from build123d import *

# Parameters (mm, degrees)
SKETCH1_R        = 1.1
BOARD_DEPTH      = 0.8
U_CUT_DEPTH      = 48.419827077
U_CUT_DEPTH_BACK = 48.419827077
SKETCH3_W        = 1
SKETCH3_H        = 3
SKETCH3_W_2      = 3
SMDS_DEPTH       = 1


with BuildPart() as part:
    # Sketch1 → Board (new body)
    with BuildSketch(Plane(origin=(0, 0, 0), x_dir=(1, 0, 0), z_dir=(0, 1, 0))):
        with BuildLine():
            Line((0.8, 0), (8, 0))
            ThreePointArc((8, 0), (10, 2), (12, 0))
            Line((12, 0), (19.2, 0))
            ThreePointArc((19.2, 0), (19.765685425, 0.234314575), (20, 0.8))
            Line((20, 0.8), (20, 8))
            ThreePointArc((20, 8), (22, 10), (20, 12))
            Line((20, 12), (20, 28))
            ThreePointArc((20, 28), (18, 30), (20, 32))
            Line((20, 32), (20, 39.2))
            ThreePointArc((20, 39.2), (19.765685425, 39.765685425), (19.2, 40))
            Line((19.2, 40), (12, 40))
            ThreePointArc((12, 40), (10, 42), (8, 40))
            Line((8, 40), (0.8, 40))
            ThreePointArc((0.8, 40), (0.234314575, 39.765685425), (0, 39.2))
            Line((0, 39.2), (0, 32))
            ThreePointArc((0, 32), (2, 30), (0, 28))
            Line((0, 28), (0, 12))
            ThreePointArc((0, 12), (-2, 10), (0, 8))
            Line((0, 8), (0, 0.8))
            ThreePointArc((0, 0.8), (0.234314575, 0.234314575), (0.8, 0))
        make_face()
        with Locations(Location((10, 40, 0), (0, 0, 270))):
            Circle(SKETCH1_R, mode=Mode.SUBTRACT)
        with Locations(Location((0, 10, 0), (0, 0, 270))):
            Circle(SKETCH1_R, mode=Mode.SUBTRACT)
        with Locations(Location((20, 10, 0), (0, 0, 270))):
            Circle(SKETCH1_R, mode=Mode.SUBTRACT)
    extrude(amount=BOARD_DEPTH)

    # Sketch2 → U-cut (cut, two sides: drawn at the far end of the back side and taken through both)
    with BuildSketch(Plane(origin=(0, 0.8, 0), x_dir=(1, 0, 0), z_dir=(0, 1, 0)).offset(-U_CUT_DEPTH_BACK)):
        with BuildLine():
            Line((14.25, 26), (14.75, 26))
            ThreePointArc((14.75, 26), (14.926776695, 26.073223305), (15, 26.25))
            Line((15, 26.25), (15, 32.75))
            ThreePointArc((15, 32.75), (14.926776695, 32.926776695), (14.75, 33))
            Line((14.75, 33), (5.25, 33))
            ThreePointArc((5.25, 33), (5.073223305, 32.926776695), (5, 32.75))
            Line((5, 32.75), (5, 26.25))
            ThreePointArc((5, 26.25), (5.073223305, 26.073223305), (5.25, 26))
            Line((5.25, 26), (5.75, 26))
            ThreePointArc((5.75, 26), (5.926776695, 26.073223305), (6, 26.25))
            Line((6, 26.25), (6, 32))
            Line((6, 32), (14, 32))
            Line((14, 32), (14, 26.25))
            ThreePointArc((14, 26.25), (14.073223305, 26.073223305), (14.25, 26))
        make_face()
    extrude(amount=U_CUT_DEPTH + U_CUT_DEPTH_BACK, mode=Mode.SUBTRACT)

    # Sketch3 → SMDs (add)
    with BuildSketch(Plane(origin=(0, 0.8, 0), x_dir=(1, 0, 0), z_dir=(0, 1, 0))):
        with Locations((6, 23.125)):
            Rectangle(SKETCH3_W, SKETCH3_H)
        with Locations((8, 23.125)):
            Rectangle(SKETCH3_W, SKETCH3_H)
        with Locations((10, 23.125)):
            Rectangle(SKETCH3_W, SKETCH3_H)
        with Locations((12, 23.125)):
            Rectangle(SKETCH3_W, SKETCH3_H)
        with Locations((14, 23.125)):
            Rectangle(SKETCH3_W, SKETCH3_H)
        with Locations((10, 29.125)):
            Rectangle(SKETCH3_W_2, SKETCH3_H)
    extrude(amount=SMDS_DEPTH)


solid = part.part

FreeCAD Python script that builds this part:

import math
import FreeCAD as App
import Part
import Sketcher
Q = App.Units.Quantity

doc = App.newDocument("Part")
body = doc.addObject("PartDesign::Body", "Body")

# Sketch on XZ plane
sketch1 = body.newObject("Sketcher::SketchObject", "Sketch")
sketch1.AttachmentSupport = (doc.getObject("XZ_Plane"), [""])
sketch1.MapMode = "FlatFace"
sketch1.addGeometry(Part.LineSegment(App.Vector(0.8, 0, 0), App.Vector(8, 0, 0)), False)
sketch1.addGeometry(Part.ArcOfCircle(Part.Circle(App.Vector(10, 0, 0), App.Vector(0, 0, 1), 2), math.radians(180), math.radians(360)), False)
sketch1.addGeometry(Part.LineSegment(App.Vector(12, 0, 0), App.Vector(19.2, 0, 0)), False)
sketch1.addGeometry(Part.ArcOfCircle(Part.Circle(App.Vector(19.2, -0.8, 0), App.Vector(0, 0, 1), 0.8), math.radians(0), math.radians(90)), False)
sketch1.addGeometry(Part.LineSegment(App.Vector(20, -0.8, 0), App.Vector(20, -8, 0)), False)
sketch1.addGeometry(Part.ArcOfCircle(Part.Circle(App.Vector(20, -10, 0), App.Vector(0, 0, 1), 2), math.radians(-90), math.radians(90)), False)
sketch1.addGeometry(Part.LineSegment(App.Vector(20, -12, 0), App.Vector(20, -28, 0)), False)
sketch1.addGeometry(Part.ArcOfCircle(Part.Circle(App.Vector(20, -30, 0), App.Vector(0, 0, 1), 2), math.radians(90), math.radians(270)), False)
sketch1.addGeometry(Part.LineSegment(App.Vector(20, -32, 0), App.Vector(20, -39.2, 0)), False)
sketch1.addGeometry(Part.ArcOfCircle(Part.Circle(App.Vector(19.2, -39.2, 0), App.Vector(0, 0, 1), 0.8), math.radians(-90), math.radians(0)), False)
sketch1.addGeometry(Part.LineSegment(App.Vector(19.2, -40, 0), App.Vector(12, -40, 0)), False)
sketch1.addGeometry(Part.ArcOfCircle(Part.Circle(App.Vector(10, -40, 0), App.Vector(0, 0, 1), 2), math.radians(180), math.radians(360)), False)
sketch1.addGeometry(Part.LineSegment(App.Vector(8, -40, 0), App.Vector(0.8, -40, 0)), False)
sketch1.addGeometry(Part.ArcOfCircle(Part.Circle(App.Vector(0.8, -39.2, 0), App.Vector(0, 0, 1), 0.8), math.radians(180), math.radians(270)), False)
sketch1.addGeometry(Part.LineSegment(App.Vector(0, -39.2, 0), App.Vector(0, -32, 0)), False)
sketch1.addGeometry(Part.ArcOfCircle(Part.Circle(App.Vector(0, -30, 0), App.Vector(0, 0, 1), 2), math.radians(-90), math.radians(90)), False)
sketch1.addGeometry(Part.LineSegment(App.Vector(0, -28, 0), App.Vector(0, -12, 0)), False)
sketch1.addGeometry(Part.ArcOfCircle(Part.Circle(App.Vector(0, -10, 0), App.Vector(0, 0, 1), 2), math.radians(90), math.radians(270)), False)
sketch1.addGeometry(Part.LineSegment(App.Vector(0, -8, 0), App.Vector(0, -0.8, 0)), False)
sketch1.addGeometry(Part.ArcOfCircle(Part.Circle(App.Vector(0.8, -0.8, 0), App.Vector(0, 0, 1), 0.8), math.radians(90), math.radians(180)), False)
sketch1.addGeometry(Part.Circle(App.Vector(0, -10, 0), App.Vector(0, 0, 1), 1.1), False)
sketch1.addGeometry(Part.Circle(App.Vector(20, -10, 0), App.Vector(0, 0, 1), 1.1), False)
sketch1.addGeometry(Part.Circle(App.Vector(10, -40, 0), App.Vector(0, 0, 1), 1.1), False)
sketch1.addConstraint(Sketcher.Constraint("Coincident", 0, 2, 1, 1))
sketch1.addConstraint(Sketcher.Constraint("Coincident", 1, 2, 2, 1))
sketch1.addConstraint(Sketcher.Constraint("Tangent", 2, 2, 3, 2))
sketch1.addConstraint(Sketcher.Constraint("Tangent", 3, 1, 4, 1))
sketch1.addConstraint(Sketcher.Constraint("Coincident", 4, 2, 5, 2))
sketch1.addConstraint(Sketcher.Constraint("Coincident", 5, 1, 6, 1))
sketch1.addConstraint(Sketcher.Constraint("Coincident", 6, 2, 7, 1))
sketch1.addConstraint(Sketcher.Constraint("Coincident", 7, 2, 8, 1))
sketch1.addConstraint(Sketcher.Constraint("Tangent", 8, 2, 9, 2))
sketch1.addConstraint(Sketcher.Constraint("Tangent", 9, 1, 10, 1))
sketch1.addConstraint(Sketcher.Constraint("Coincident", 10, 2, 11, 2))
sketch1.addConstraint(Sketcher.Constraint("Coincident", 11, 1, 12, 1))
sketch1.addConstraint(Sketcher.Constraint("Tangent", 12, 2, 13, 2))
sketch1.addConstraint(Sketcher.Constraint("Tangent", 13, 1, 14, 1))
sketch1.addConstraint(Sketcher.Constraint("Coincident", 14, 2, 15, 1))
sketch1.addConstraint(Sketcher.Constraint("Coincident", 15, 2, 16, 1))
sketch1.addConstraint(Sketcher.Constraint("Coincident", 16, 2, 17, 2))
sketch1.addConstraint(Sketcher.Constraint("Coincident", 17, 1, 18, 1))
sketch1.addConstraint(Sketcher.Constraint("Tangent", 18, 2, 19, 2))
sketch1.addConstraint(Sketcher.Constraint("Tangent", 19, 1, 0, 1))
sketch1.addConstraint(Sketcher.Constraint("Horizontal", 0))
sketch1.addConstraint(Sketcher.Constraint("Horizontal", 2))
sketch1.addConstraint(Sketcher.Constraint("Vertical", 4))
sketch1.addConstraint(Sketcher.Constraint("Vertical", 6))
sketch1.addConstraint(Sketcher.Constraint("Vertical", 8))
sketch1.addConstraint(Sketcher.Constraint("Horizontal", 10))
sketch1.addConstraint(Sketcher.Constraint("Horizontal", 12))
sketch1.addConstraint(Sketcher.Constraint("Vertical", 14))
sketch1.addConstraint(Sketcher.Constraint("Vertical", 16))
sketch1.addConstraint(Sketcher.Constraint("Vertical", 18))
sketch1.addConstraint(Sketcher.Constraint("Coincident", 20, 3, 17, 3))
sketch1.addConstraint(Sketcher.Constraint("Coincident", 21, 3, 5, 3))
sketch1.addConstraint(Sketcher.Constraint("Coincident", 22, 3, 11, 3))
sketch1.addConstraint(Sketcher.Constraint("Equal", 1, 5))
sketch1.addConstraint(Sketcher.Constraint("Equal", 5, 7))
sketch1.addConstraint(Sketcher.Constraint("Equal", 3, 9))
sketch1.addConstraint(Sketcher.Constraint("Equal", 7, 11))
sketch1.addConstraint(Sketcher.Constraint("Equal", 9, 13))
sketch1.addConstraint(Sketcher.Constraint("Equal", 11, 15))
sketch1.addConstraint(Sketcher.Constraint("Equal", 15, 17))
sketch1.addConstraint(Sketcher.Constraint("Equal", 13, 19))
sketch1.addConstraint(Sketcher.Constraint("Equal", 20, 21))
sketch1.addConstraint(Sketcher.Constraint("Equal", 21, 22))
sketch1.addConstraint(Sketcher.Constraint("PointOnObject", 1, 3, -1))
sketch1.addConstraint(Sketcher.Constraint("PointOnObject", 15, 3, -2))
sketch1.addConstraint(Sketcher.Constraint("PointOnObject", 17, 3, -2))
sketch1.addConstraint(Sketcher.Constraint("PointOnObject", 0, 2, -1))
sketch1.addConstraint(Sketcher.Constraint("PointOnObject", 1, 2, -1))
sketch1.addConstraint(Sketcher.Constraint("PointOnObject", 13, 1, -2))
sketch1.addConstraint(Sketcher.Constraint("PointOnObject", 15, 2, -2))
sketch1.addConstraint(Sketcher.Constraint("PointOnObject", 17, 1, -2))
sketch1.addConstraint(Sketcher.Constraint("Horizontal", 9, 3, 13, 3))
sketch1.addConstraint(Sketcher.Constraint("Horizontal", 7, 3, 15, 3))
sketch1.addConstraint(Sketcher.Constraint("Horizontal", 5, 3, 17, 3))
sketch1.addConstraint(Sketcher.Constraint("Horizontal", 22, 3, 9, 1))
sketch1.addConstraint(Sketcher.Constraint("Vertical", 5, 3, 7, 3))
sketch1.addConstraint(Sketcher.Constraint("Vertical", 3, 3, 9, 3))
sketch1.addConstraint(Sketcher.Constraint("Vertical", 1, 3, 11, 3))
sketch1.addConstraint(Sketcher.Constraint("Vertical", 21, 3, 3, 1))
sketch1.addConstraint(Sketcher.Constraint("Vertical", 4, 2, 5, 1))
sketch1.addConstraint(Sketcher.Constraint("Equal", 0, 2))
sketch1.addConstraint(Sketcher.Constraint("Equal", 12, 4))
sketch1.addConstraint(Sketcher.Constraint("Equal", 4, 8))
sketch1.addConstraint(Sketcher.Constraint("Radius", 1, Q("2 mm")))
sketch1.addConstraint(Sketcher.Constraint("Diameter", 20, Q("2.2 mm")))
sketch1.addConstraint(Sketcher.Constraint("Radius", 3, Q("0.8 mm")))
sketch1.addConstraint(Sketcher.Constraint("DistanceY", 6, 2, 6, 1, Q("16 mm")))
sketch1.addConstraint(Sketcher.Constraint("DistanceX", 0, 1, 0, 2, Q("7.2 mm")))
pad1 = body.newObject("PartDesign::Pad", "Pad")
pad1.Profile = sketch1
pad1.Length = 0.8
pad1.Reversed = True

# Sketch on XZ plane
sketch2 = body.newObject("Sketcher::SketchObject", "Sketch001")
sketch2.AttachmentSupport = (doc.getObject("XZ_Plane"), [""])
sketch2.MapMode = "FlatFace"
sketch2.AttachmentOffset = App.Placement(App.Vector(0, 0, -0.8), App.Rotation())
sketch2.addGeometry(Part.LineSegment(App.Vector(14.25, -26, 0), App.Vector(14.75, -26, 0)), False)
sketch2.addGeometry(Part.ArcOfCircle(Part.Circle(App.Vector(14.75, -26.25, 0), App.Vector(0, 0, 1), 0.25), math.radians(0), math.radians(90)), False)
sketch2.addGeometry(Part.LineSegment(App.Vector(15, -26.25, 0), App.Vector(15, -32.75, 0)), False)
sketch2.addGeometry(Part.ArcOfCircle(Part.Circle(App.Vector(14.75, -32.75, 0), App.Vector(0, 0, 1), 0.25), math.radians(-90), math.radians(0)), False)
sketch2.addGeometry(Part.LineSegment(App.Vector(14.75, -33, 0), App.Vector(5.25, -33, 0)), False)
sketch2.addGeometry(Part.ArcOfCircle(Part.Circle(App.Vector(5.25, -32.75, 0), App.Vector(0, 0, 1), 0.25), math.radians(-180), math.radians(-90)), False)
sketch2.addGeometry(Part.LineSegment(App.Vector(5, -32.75, 0), App.Vector(5, -26.25, 0)), False)
sketch2.addGeometry(Part.ArcOfCircle(Part.Circle(App.Vector(5.25, -26.25, 0), App.Vector(0, 0, 1), 0.25), math.radians(90), math.radians(180)), False)
sketch2.addGeometry(Part.LineSegment(App.Vector(5.25, -26, 0), App.Vector(5.75, -26, 0)), False)
sketch2.addGeometry(Part.ArcOfCircle(Part.Circle(App.Vector(5.75, -26.25, 0), App.Vector(0, 0, 1), 0.25), math.radians(0), math.radians(90)), False)
sketch2.addGeometry(Part.LineSegment(App.Vector(6, -26.25, 0), App.Vector(6, -32, 0)), False)
sketch2.addGeometry(Part.LineSegment(App.Vector(6, -32, 0), App.Vector(14, -32, 0)), False)
sketch2.addGeometry(Part.LineSegment(App.Vector(14, -32, 0), App.Vector(14, -26.25, 0)), False)
sketch2.addGeometry(Part.ArcOfCircle(Part.Circle(App.Vector(14.25, -26.25, 0), App.Vector(0, 0, 1), 0.25), math.radians(90), math.radians(180)), False)
sketch2.addConstraint(Sketcher.Constraint("Tangent", 0, 2, 1, 2))
sketch2.addConstraint(Sketcher.Constraint("Tangent", 1, 1, 2, 1))
sketch2.addConstraint(Sketcher.Constraint("Tangent", 2, 2, 3, 2))
sketch2.addConstraint(Sketcher.Constraint("Tangent", 3, 1, 4, 1))
sketch2.addConstraint(Sketcher.Constraint("Tangent", 4, 2, 5, 2))
sketch2.addConstraint(Sketcher.Constraint("Tangent", 5, 1, 6, 1))
sketch2.addConstraint(Sketcher.Constraint("Tangent", 6, 2, 7, 2))
sketch2.addConstraint(Sketcher.Constraint("Tangent", 7, 1, 8, 1))
sketch2.addConstraint(Sketcher.Constraint("Tangent", 8, 2, 9, 2))
sketch2.addConstraint(Sketcher.Constraint("Tangent", 9, 1, 10, 1))
sketch2.addConstraint(Sketcher.Constraint("Coincident", 10, 2, 11, 1))
sketch2.addConstraint(Sketcher.Constraint("Coincident", 11, 2, 12, 1))
sketch2.addConstraint(Sketcher.Constraint("Tangent", 12, 2, 13, 2))
sketch2.addConstraint(Sketcher.Constraint("Tangent", 13, 1, 0, 1))
sketch2.addConstraint(Sketcher.Constraint("Horizontal", 0))
sketch2.addConstraint(Sketcher.Constraint("Vertical", 2))
sketch2.addConstraint(Sketcher.Constraint("Horizontal", 4))
sketch2.addConstraint(Sketcher.Constraint("Vertical", 6))
sketch2.addConstraint(Sketcher.Constraint("Horizontal", 8))
sketch2.addConstraint(Sketcher.Constraint("Vertical", 10))
sketch2.addConstraint(Sketcher.Constraint("Horizontal", 11))
sketch2.addConstraint(Sketcher.Constraint("Vertical", 12))
sketch2.addConstraint(Sketcher.Constraint("Equal", 1, 3))
sketch2.addConstraint(Sketcher.Constraint("Equal", 3, 5))
sketch2.addConstraint(Sketcher.Constraint("Equal", 5, 7))
sketch2.addConstraint(Sketcher.Constraint("Equal", 7, 9))
sketch2.addConstraint(Sketcher.Constraint("Equal", 9, 13))
sketch2.addConstraint(Sketcher.Constraint("Horizontal", 1, 3, 7, 3))
sketch2.addConstraint(Sketcher.Constraint("Equal", 0, 8))
sketch2.addConstraint(Sketcher.Constraint("DistanceX", 11, 1, 11, 2, Q("8 mm")))
sketch2.addConstraint(Sketcher.Constraint("Radius", 1, Q("0.25 mm")))
sketch2.addConstraint(Sketcher.Constraint("DistanceX", 0, 1, 0, 2, Q("0.5 mm")))
sketch2.addConstraint(Sketcher.Constraint("DistanceY", 2, 2, 2, 1, Q("6.5 mm")))
sketch2.addConstraint(Sketcher.Constraint("DistanceY", 0, 2, -1, 1, Q("26 mm")))
sketch2.addConstraint(Sketcher.Constraint("DistanceX", -1, 1, 1, 1, Q("15 mm")))
sketch2.addConstraint(Sketcher.Constraint("DistanceY", 10, 2, -1, 1, Q("32 mm")))
pocket1 = body.newObject("PartDesign::Pocket", "Pocket")
pocket1.Profile = sketch2
pocket1.Type = "ThroughAll"
pocket1.Midplane = True

# Sketch on XZ plane
sketch3 = body.newObject("Sketcher::SketchObject", "Sketch002")
sketch3.AttachmentSupport = (doc.getObject("XZ_Plane"), [""])
sketch3.MapMode = "FlatFace"
sketch3.AttachmentOffset = App.Placement(App.Vector(0, 0, -0.8), App.Rotation())
sketch3.addGeometry(Part.LineSegment(App.Vector(5.5, -24.6, 0), App.Vector(5.5, -21.6, 0)), False)
sketch3.addGeometry(Part.LineSegment(App.Vector(5.5, -21.6, 0), App.Vector(6.5, -21.6, 0)), False)
sketch3.addGeometry(Part.LineSegment(App.Vector(6.5, -21.6, 0), App.Vector(6.5, -24.6, 0)), False)
sketch3.addGeometry(Part.LineSegment(App.Vector(6.5, -24.6, 0), App.Vector(5.5, -24.6, 0)), False)
sketch3.addGeometry(Part.LineSegment(App.Vector(7.5, -24.6, 0), App.Vector(7.5, -21.6, 0)), False)
sketch3.addGeometry(Part.LineSegment(App.Vector(7.5, -21.6, 0), App.Vector(8.5, -21.6, 0)), False)
sketch3.addGeometry(Part.LineSegment(App.Vector(8.5, -21.6, 0), App.Vector(8.5, -24.6, 0)), False)
sketch3.addGeometry(Part.LineSegment(App.Vector(8.5, -24.6, 0), App.Vector(7.5, -24.6, 0)), False)
sketch3.addGeometry(Part.LineSegment(App.Vector(9.5, -24.6, 0), App.Vector(9.5, -21.6, 0)), False)
sketch3.addGeometry(Part.LineSegment(App.Vector(9.5, -21.6, 0), App.Vector(10.5, -21.6, 0)), False)
sketch3.addGeometry(Part.LineSegment(App.Vector(10.5, -21.6, 0), App.Vector(10.5, -24.6, 0)), False)
sketch3.addGeometry(Part.LineSegment(App.Vector(10.5, -24.6, 0), App.Vector(9.5, -24.6, 0)), False)
sketch3.addGeometry(Part.LineSegment(App.Vector(11.5, -24.6, 0), App.Vector(11.5, -21.6, 0)), False)
sketch3.addGeometry(Part.LineSegment(App.Vector(11.5, -21.6, 0), App.Vector(12.5, -21.6, 0)), False)
sketch3.addGeometry(Part.LineSegment(App.Vector(12.5, -21.6, 0), App.Vector(12.5, -24.6, 0)), False)
sketch3.addGeometry(Part.LineSegment(App.Vector(12.5, -24.6, 0), App.Vector(11.5, -24.6, 0)), False)
sketch3.addGeometry(Part.LineSegment(App.Vector(13.5, -24.6, 0), App.Vector(13.5, -21.6, 0)), False)
sketch3.addGeometry(Part.LineSegment(App.Vector(13.5, -21.6, 0), App.Vector(14.5, -21.6, 0)), False)
sketch3.addGeometry(Part.LineSegment(App.Vector(14.5, -21.6, 0), App.Vector(14.5, -24.6, 0)), False)
sketch3.addGeometry(Part.LineSegment(App.Vector(14.5, -24.6, 0), App.Vector(13.5, -24.6, 0)), False)
sketch3.addGeometry(Part.LineSegment(App.Vector(8.5, -30.6, 0), App.Vector(8.5, -27.6, 0)), False)
sketch3.addGeometry(Part.LineSegment(App.Vector(8.5, -27.6, 0), App.Vector(11.5, -27.6, 0)), False)
sketch3.addGeometry(Part.LineSegment(App.Vector(11.5, -27.6, 0), App.Vector(11.5, -30.6, 0)), False)
sketch3.addGeometry(Part.LineSegment(App.Vector(11.5, -30.6, 0), App.Vector(8.5, -30.6, 0)), False)
sketch3.addConstraint(Sketcher.Constraint("Coincident", 0, 2, 1, 1))
sketch3.addConstraint(Sketcher.Constraint("Coincident", 1, 2, 2, 1))
sketch3.addConstraint(Sketcher.Constraint("Coincident", 2, 2, 3, 1))
sketch3.addConstraint(Sketcher.Constraint("Coincident", 3, 2, 0, 1))
sketch3.addConstraint(Sketcher.Constraint("Coincident", 4, 2, 5, 1))
sketch3.addConstraint(Sketcher.Constraint("Coincident", 5, 2, 6, 1))
sketch3.addConstraint(Sketcher.Constraint("Coincident", 6, 2, 7, 1))
sketch3.addConstraint(Sketcher.Constraint("Coincident", 7, 2, 4, 1))
sketch3.addConstraint(Sketcher.Constraint("Coincident", 8, 2, 9, 1))
sketch3.addConstraint(Sketcher.Constraint("Coincident", 9, 2, 10, 1))
sketch3.addConstraint(Sketcher.Constraint("Coincident", 10, 2, 11, 1))
sketch3.addConstraint(Sketcher.Constraint("Coincident", 11, 2, 8, 1))
sketch3.addConstraint(Sketcher.Constraint("Coincident", 12, 2, 13, 1))
sketch3.addConstraint(Sketcher.Constraint("Coincident", 13, 2, 14, 1))
sketch3.addConstraint(Sketcher.Constraint("Coincident", 14, 2, 15, 1))
sketch3.addConstraint(Sketcher.Constraint("Coincident", 15, 2, 12, 1))
sketch3.addConstraint(Sketcher.Constraint("Coincident", 16, 2, 17, 1))
sketch3.addConstraint(Sketcher.Constraint("Coincident", 17, 2, 18, 1))
sketch3.addConstraint(Sketcher.Constraint("Coincident", 18, 2, 19, 1))
sketch3.addConstraint(Sketcher.Constraint("Coincident", 19, 2, 16, 1))
sketch3.addConstraint(Sketcher.Constraint("Coincident", 20, 2, 21, 1))
sketch3.addConstraint(Sketcher.Constraint("Coincident", 21, 2, 22, 1))
sketch3.addConstraint(Sketcher.Constraint("Coincident", 22, 2, 23, 1))
sketch3.addConstraint(Sketcher.Constraint("Coincident", 23, 2, 20, 1))
sketch3.addConstraint(Sketcher.Constraint("Vertical", 0))
sketch3.addConstraint(Sketcher.Constraint("Horizontal", 1))
sketch3.addConstraint(Sketcher.Constraint("Vertical", 2))
sketch3.addConstraint(Sketcher.Constraint("Horizontal", 3))
sketch3.addConstraint(Sketcher.Constraint("Vertical", 4))
sketch3.addConstraint(Sketcher.Constraint("Horizontal", 5))
sketch3.addConstraint(Sketcher.Constraint("Vertical", 6))
sketch3.addConstraint(Sketcher.Constraint("Horizontal", 7))
sketch3.addConstraint(Sketcher.Constraint("Vertical", 8))
sketch3.addConstraint(Sketcher.Constraint("Horizontal", 9))
sketch3.addConstraint(Sketcher.Constraint("Vertical", 10))
sketch3.addConstraint(Sketcher.Constraint("Horizontal", 11))
sketch3.addConstraint(Sketcher.Constraint("Vertical", 12))
sketch3.addConstraint(Sketcher.Constraint("Horizontal", 13))
sketch3.addConstraint(Sketcher.Constraint("Vertical", 14))
sketch3.addConstraint(Sketcher.Constraint("Horizontal", 15))
sketch3.addConstraint(Sketcher.Constraint("Vertical", 16))
sketch3.addConstraint(Sketcher.Constraint("Horizontal", 17))
sketch3.addConstraint(Sketcher.Constraint("Vertical", 18))
sketch3.addConstraint(Sketcher.Constraint("Horizontal", 19))
sketch3.addConstraint(Sketcher.Constraint("Vertical", 20))
sketch3.addConstraint(Sketcher.Constraint("Horizontal", 21))
sketch3.addConstraint(Sketcher.Constraint("Vertical", 22))
sketch3.addConstraint(Sketcher.Constraint("Horizontal", 23))
sketch3.addConstraint(Sketcher.Constraint("Horizontal", 1, 2, 4, 2))
sketch3.addConstraint(Sketcher.Constraint("Horizontal", 3, 2, 6, 2))
sketch3.addConstraint(Sketcher.Constraint("Horizontal", 5, 2, 8, 2))
sketch3.addConstraint(Sketcher.Constraint("Horizontal", 7, 2, 10, 2))
sketch3.addConstraint(Sketcher.Constraint("Horizontal", 9, 2, 12, 2))
sketch3.addConstraint(Sketcher.Constraint("Horizontal", 11, 2, 14, 2))
sketch3.addConstraint(Sketcher.Constraint("Horizontal", 13, 2, 16, 2))
sketch3.addConstraint(Sketcher.Constraint("Horizontal", 15, 2, 18, 2))
sketch3.addConstraint(Sketcher.Constraint("Vertical", 6, 2, 20, 2))
sketch3.addConstraint(Sketcher.Constraint("Vertical", 15, 2, 21, 2))
sketch3.addConstraint(Sketcher.Constraint("Equal", 3, 5))
sketch3.addConstraint(Sketcher.Constraint("Equal", 7, 9))
sketch3.addConstraint(Sketcher.Constraint("Equal", 11, 13))
sketch3.addConstraint(Sketcher.Constraint("Equal", 15, 17))
sketch3.addConstraint(Sketcher.Constraint("Equal", 23, 0))
sketch3.addConstraint(Sketcher.Constraint("Equal", 18, 20))
sketch3.addConstraint(Sketcher.Constraint("DistanceX", 1, 1, 1, 2, Q("1 mm")))
sketch3.addConstraint(Sketcher.Constraint("DistanceX", 21, 1, 21, 2, Q("3 mm")))
sketch3.addConstraint(Sketcher.Constraint("DistanceX", 1, 2, 4, 2, Q("1 mm")))
sketch3.addConstraint(Sketcher.Constraint("DistanceX", 5, 2, 8, 2, Q("1 mm")))
sketch3.addConstraint(Sketcher.Constraint("DistanceX", 13, 2, 16, 2, Q("1 mm")))
sketch3.addConstraint(Sketcher.Constraint("DistanceY", 20, 2, 6, 2, Q("3 mm")))
sketch3.addConstraint(Sketcher.Constraint("DistanceX", -1, 1, 0, 2, Q("5.5 mm")))
sketch3.addConstraint(Sketcher.Constraint("DistanceY", 0, 2, -1, 1, Q("21.625 mm")))
pad2 = body.newObject("PartDesign::Pad", "Pad001")
pad2.Profile = sketch3
pad2.Length = 1
pad2.Reversed = True

doc.recompute()
